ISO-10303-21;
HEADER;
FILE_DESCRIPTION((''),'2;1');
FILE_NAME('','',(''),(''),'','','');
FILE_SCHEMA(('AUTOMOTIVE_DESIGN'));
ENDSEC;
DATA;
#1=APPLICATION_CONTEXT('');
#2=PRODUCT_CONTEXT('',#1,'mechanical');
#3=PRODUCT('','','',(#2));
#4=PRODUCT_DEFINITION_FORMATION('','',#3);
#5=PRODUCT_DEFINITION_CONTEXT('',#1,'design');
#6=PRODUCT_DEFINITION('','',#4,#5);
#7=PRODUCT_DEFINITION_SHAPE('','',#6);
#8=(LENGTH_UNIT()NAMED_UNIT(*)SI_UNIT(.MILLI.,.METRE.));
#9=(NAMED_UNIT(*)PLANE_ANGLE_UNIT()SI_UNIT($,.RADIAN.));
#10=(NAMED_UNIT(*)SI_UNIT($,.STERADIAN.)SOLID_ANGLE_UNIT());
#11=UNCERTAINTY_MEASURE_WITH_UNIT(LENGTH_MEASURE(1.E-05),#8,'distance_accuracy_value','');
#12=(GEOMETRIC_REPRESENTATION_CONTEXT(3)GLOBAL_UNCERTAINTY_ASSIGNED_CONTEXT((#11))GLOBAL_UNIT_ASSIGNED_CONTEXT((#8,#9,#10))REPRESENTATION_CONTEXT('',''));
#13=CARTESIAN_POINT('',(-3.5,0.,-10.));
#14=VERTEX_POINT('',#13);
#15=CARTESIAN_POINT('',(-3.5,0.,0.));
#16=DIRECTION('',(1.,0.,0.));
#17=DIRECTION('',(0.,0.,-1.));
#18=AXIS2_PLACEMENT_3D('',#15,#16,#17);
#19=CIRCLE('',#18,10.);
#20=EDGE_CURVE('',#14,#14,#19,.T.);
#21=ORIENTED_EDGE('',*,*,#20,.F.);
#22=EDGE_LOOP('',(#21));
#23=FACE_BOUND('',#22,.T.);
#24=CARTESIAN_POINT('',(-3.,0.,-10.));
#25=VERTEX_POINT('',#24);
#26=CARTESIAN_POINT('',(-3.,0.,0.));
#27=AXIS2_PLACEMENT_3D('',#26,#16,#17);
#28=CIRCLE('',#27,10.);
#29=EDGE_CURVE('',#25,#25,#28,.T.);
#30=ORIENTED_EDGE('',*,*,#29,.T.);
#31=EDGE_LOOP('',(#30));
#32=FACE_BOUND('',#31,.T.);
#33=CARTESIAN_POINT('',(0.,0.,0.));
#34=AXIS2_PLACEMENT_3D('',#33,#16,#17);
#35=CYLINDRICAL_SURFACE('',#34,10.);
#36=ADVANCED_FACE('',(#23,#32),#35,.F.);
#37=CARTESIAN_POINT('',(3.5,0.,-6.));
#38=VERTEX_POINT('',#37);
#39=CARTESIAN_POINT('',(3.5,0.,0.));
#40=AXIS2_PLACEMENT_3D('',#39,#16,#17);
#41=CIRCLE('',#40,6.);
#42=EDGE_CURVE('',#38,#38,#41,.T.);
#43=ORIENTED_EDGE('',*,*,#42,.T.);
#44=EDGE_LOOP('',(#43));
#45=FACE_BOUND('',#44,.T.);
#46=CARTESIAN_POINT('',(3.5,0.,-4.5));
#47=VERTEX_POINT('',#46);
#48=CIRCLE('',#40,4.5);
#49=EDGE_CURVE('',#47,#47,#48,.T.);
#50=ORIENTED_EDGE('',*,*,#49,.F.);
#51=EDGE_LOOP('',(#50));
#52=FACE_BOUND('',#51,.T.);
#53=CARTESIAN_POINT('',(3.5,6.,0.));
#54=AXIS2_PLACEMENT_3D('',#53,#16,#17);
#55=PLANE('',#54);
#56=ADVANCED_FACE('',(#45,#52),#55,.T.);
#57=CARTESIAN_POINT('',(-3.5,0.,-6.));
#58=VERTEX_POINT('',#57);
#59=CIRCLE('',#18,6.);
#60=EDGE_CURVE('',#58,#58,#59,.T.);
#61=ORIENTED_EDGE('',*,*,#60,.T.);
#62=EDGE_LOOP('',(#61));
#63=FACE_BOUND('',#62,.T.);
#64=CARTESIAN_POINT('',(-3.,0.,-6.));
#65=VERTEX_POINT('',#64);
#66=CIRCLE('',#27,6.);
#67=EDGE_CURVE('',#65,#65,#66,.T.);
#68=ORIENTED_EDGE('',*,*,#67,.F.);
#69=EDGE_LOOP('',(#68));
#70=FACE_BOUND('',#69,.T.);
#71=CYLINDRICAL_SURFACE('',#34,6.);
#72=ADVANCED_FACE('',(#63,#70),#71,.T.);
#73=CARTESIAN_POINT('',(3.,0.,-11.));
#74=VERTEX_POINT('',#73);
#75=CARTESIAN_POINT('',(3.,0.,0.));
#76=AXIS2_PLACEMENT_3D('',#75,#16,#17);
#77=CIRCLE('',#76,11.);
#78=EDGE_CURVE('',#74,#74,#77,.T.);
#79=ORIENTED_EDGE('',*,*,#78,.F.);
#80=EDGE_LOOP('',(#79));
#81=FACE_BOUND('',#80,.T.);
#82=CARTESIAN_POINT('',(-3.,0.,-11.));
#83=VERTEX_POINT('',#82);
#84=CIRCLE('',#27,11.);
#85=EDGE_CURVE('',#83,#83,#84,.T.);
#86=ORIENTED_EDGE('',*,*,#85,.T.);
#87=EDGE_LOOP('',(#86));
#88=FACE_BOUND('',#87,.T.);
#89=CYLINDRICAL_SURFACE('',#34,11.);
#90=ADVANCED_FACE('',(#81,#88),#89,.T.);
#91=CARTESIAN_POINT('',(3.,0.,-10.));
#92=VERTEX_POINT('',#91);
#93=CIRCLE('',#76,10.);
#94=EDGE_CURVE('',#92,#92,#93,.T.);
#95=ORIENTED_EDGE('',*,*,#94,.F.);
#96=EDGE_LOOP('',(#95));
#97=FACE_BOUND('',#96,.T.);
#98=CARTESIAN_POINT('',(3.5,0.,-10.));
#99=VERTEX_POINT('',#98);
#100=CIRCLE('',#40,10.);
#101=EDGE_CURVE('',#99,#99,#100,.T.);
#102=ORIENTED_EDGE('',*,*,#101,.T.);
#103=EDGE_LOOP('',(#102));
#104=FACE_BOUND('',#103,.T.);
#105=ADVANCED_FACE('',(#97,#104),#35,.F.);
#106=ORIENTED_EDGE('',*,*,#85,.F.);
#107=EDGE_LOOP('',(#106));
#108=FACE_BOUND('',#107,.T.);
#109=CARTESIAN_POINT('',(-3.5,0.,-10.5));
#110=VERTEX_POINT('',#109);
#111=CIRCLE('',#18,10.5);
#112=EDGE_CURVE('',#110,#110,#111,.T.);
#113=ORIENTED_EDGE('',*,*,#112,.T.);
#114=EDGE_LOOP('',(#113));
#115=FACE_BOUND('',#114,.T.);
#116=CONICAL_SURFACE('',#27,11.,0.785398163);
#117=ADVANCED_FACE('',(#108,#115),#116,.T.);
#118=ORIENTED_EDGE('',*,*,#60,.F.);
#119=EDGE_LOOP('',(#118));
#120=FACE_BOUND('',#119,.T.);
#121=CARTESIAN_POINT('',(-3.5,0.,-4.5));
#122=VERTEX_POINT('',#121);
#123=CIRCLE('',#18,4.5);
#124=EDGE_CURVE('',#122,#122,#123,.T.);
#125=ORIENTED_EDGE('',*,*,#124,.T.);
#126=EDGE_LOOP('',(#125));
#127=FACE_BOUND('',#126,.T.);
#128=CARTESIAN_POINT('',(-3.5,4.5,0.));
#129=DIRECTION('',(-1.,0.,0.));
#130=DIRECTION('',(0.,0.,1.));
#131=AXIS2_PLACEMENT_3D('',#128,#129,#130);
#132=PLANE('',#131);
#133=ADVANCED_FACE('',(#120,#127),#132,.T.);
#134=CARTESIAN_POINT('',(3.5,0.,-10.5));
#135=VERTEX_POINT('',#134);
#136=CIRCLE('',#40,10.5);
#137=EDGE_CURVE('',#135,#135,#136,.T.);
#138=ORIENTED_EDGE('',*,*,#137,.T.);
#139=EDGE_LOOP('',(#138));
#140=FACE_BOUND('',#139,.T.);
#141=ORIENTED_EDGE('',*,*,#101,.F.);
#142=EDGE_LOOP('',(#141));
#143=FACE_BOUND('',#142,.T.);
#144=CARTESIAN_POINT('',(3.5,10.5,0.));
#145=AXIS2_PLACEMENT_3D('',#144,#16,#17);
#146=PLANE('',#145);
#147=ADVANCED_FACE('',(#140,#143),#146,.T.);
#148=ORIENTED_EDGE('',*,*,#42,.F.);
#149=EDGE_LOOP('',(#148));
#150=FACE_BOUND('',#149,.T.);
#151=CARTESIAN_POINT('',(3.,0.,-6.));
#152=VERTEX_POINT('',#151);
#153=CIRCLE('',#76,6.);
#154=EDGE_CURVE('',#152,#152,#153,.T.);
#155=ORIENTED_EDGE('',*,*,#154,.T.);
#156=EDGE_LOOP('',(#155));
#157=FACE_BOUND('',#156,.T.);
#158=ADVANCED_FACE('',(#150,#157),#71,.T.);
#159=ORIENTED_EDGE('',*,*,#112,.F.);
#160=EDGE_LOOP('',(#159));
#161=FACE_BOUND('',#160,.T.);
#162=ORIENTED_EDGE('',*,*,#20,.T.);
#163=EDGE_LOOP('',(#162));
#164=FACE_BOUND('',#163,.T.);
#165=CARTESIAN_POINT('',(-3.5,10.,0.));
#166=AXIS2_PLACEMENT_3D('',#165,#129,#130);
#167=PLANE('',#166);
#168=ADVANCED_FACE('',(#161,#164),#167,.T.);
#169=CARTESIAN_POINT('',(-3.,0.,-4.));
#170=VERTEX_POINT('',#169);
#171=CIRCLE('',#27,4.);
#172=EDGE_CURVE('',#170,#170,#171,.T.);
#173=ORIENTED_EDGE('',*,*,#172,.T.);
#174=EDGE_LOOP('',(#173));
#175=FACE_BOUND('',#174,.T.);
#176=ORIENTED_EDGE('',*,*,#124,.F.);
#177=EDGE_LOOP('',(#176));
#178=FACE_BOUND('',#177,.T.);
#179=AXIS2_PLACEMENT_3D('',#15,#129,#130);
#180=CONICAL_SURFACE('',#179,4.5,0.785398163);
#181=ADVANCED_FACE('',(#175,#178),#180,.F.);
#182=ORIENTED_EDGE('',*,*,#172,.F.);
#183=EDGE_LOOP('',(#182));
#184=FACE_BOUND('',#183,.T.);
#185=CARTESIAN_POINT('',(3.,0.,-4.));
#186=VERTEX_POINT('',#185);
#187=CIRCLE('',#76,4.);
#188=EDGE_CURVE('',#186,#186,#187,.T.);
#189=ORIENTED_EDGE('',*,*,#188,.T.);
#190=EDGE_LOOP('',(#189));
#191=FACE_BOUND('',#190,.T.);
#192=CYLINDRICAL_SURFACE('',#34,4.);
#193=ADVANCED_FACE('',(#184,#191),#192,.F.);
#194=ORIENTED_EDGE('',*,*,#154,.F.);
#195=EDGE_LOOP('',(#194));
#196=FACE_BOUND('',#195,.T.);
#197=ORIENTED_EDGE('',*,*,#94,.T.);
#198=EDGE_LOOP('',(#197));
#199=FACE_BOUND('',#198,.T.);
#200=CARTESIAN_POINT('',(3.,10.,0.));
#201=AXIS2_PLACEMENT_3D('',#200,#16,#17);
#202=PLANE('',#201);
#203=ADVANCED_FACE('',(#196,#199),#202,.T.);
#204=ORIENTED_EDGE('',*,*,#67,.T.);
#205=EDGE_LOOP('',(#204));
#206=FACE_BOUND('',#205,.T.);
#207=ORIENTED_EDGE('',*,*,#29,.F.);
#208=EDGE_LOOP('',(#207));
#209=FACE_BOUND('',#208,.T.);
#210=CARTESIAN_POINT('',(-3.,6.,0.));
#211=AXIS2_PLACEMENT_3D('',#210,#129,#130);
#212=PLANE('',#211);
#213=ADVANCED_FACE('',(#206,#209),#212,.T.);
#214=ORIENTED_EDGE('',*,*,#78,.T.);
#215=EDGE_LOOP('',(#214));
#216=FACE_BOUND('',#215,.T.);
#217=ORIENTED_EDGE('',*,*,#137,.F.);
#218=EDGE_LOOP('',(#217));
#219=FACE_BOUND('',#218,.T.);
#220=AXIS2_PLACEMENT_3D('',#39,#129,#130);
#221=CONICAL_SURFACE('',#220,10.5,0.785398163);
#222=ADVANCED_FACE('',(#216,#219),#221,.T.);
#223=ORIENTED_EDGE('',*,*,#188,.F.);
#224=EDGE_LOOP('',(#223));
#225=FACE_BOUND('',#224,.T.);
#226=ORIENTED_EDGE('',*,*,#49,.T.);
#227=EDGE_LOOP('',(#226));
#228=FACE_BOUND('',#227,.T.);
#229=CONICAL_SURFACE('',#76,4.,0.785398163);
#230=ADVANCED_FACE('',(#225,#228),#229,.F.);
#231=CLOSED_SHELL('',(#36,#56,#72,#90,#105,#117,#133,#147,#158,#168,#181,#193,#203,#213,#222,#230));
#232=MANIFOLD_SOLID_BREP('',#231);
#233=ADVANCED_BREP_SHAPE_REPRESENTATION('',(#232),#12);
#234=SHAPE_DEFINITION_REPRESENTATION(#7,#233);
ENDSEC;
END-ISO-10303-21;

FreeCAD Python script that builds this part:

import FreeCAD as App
import Part
import Sketcher
from FreeCAD import Vector

doc = App.newDocument("Part")
params = doc.addObject("Spreadsheet::Sheet", "Params")
for row, (alias, value) in enumerate([
    ("sketch1_width", "6 mm"),
    ("sketch1_height", "4 mm"),
    ("sketch1_width2", "0.5 mm"),
    ("sketch1_height2", "1.5 mm"),
    ("revolution_angle", "360 deg"),
], start=1):
    params.set(f"A{row}", alias)
    params.set(f"B{row}", "=" + value)
    params.setAlias(f"B{row}", alias)

body = doc.addObject("PartDesign::Body", "Body")

# Sketch on XY plane
sketch1 = body.newObject("Sketcher::SketchObject", "Sketch")
sketch1.AttachmentSupport = (doc.getObject("XY_Plane"), [""])
sketch1.MapMode = "FlatFace"
sketch1.addGeometry(Part.LineSegment(Vector(3, 11, 0), Vector(-3, 11, 0)), False)
sketch1.addGeometry(Part.LineSegment(Vector(-3, 11, 0), Vector(-3.5, 10.5, 0)), False)
sketch1.addGeometry(Part.LineSegment(Vector(-3.5, 10.5, 0), Vector(-3.5, 10, 0)), False)
sketch1.addGeometry(Part.LineSegment(Vector(-3.5, 10, 0), Vector(-3, 10, 0)), False)
sketch1.addGeometry(Part.LineSegment(Vector(-3, 10, 0), Vector(-3, 6, 0)), False)
sketch1.addGeometry(Part.LineSegment(Vector(-3, 6, 0), Vector(-3.5, 6, 0)), False)
sketch1.addGeometry(Part.LineSegment(Vector(-3.5, 6, 0), Vector(-3.5, 4.5, 0)), False)
sketch1.addGeometry(Part.LineSegment(Vector(-3.5, 4.5, 0), Vector(-3, 4, 0)), False)
sketch1.addGeometry(Part.LineSegment(Vector(-3, 4, 0), Vector(3, 4, 0)), False)
sketch1.addGeometry(Part.LineSegment(Vector(3, 4, 0), Vector(3.5, 4.5, 0)), False)
sketch1.addGeometry(Part.LineSegment(Vector(3.5, 4.5, 0), Vector(3.5, 6, 0)), False)
sketch1.addGeometry(Part.LineSegment(Vector(3.5, 6, 0), Vector(3, 6, 0)), False)
sketch1.addGeometry(Part.LineSegment(Vector(3, 6, 0), Vector(3, 10, 0)), False)
sketch1.addGeometry(Part.LineSegment(Vector(3, 10, 0), Vector(3.5, 10, 0)), False)
sketch1.addGeometry(Part.LineSegment(Vector(3.5, 10, 0), Vector(3.5, 10.5, 0)), False)
sketch1.addGeometry(Part.LineSegment(Vector(3.5, 10.5, 0), Vector(3, 11, 0)), False)
sketch1.addConstraint(Sketcher.Constraint("Coincident", 0, 2, 1, 1))
sketch1.addConstraint(Sketcher.Constraint("Coincident", 1, 2, 2, 1))
sketch1.addConstraint(Sketcher.Constraint("Coincident", 2, 2, 3, 1))
sketch1.addConstraint(Sketcher.Constraint("Coincident", 3, 2, 4, 1))
sketch1.addConstraint(Sketcher.Constraint("Coincident", 4, 2, 5, 1))
sketch1.addConstraint(Sketcher.Constraint("Coincident", 5, 2, 6, 1))
sketch1.addConstraint(Sketcher.Constraint("Coincident", 6, 2, 7, 1))
sketch1.addConstraint(Sketcher.Constraint("Coincident", 7, 2, 8, 1))
sketch1.addConstraint(Sketcher.Constraint("Coincident", 8, 2, 9, 1))
sketch1.addConstraint(Sketcher.Constraint("Coincident", 9, 2, 10, 1))
sketch1.addConstraint(Sketcher.Constraint("Coincident", 10, 2, 11, 1))
sketch1.addConstraint(Sketcher.Constraint("Coincident", 11, 2, 12, 1))
sketch1.addConstraint(Sketcher.Constraint("Coincident", 12, 2, 13, 1))
sketch1.addConstraint(Sketcher.Constraint("Coincident", 13, 2, 14, 1))
sketch1.addConstraint(Sketcher.Constraint("Coincident", 14, 2, 15, 1))
sketch1.addConstraint(Sketcher.Constraint("Coincident", 15, 2, 0, 1))
sketch1.addConstraint(Sketcher.Constraint("Horizontal", 0))
sketch1.addConstraint(Sketcher.Constraint("Vertical", 2))
sketch1.addConstraint(Sketcher.Constraint("Horizontal", 3))
sketch1.addConstraint(Sketcher.Constraint("Vertical", 4))
sketch1.addConstraint(Sketcher.Constraint("Horizontal", 5))
sketch1.addConstraint(Sketcher.Constraint("Vertical", 6))
sketch1.addConstraint(Sketcher.Constraint("Horizontal", 8))
sketch1.addConstraint(Sketcher.Constraint("Vertical", 10))
sketch1.addConstraint(Sketcher.Constraint("Horizontal", 11))
sketch1.addConstraint(Sketcher.Constraint("Vertical", 12))
sketch1.addConstraint(Sketcher.Constraint("Horizontal", 13))
sketch1.addConstraint(Sketcher.Constraint("Vertical", 14))
sketch1.addConstraint(Sketcher.Constraint("Symmetric", 6, 2, 9, 2, -2))
sketch1.addConstraint(Sketcher.Constraint("Symmetric", 4, 2, 11, 2, -2))
sketch1.addConstraint(Sketcher.Constraint("Symmetric", 2, 2, 13, 2, -2))
sketch1.addConstraint(Sketcher.Constraint("Perpendicular", 1, 7))
sketch1.addConstraint(Sketcher.Constraint("Perpendicular", 7, 9))
sketch1.addConstraint(Sketcher.Constraint("Perpendicular", 9, 15))
sketch1.addConstraint(Sketcher.Constraint("Horizontal", 1, 2, 14, 2))
sketch1.addConstraint(Sketcher.Constraint("Vertical", 0, 2, 3, 2))
sketch1.addConstraint(Sketcher.Constraint("Vertical", 2, 2, 5, 2))
sketch1.addConstraint(Sketcher.Constraint("Vertical", 4, 2, 7, 2))
sketch1.addConstraint(Sketcher.Constraint("Vertical", 8, 2, 11, 2))
sketch1.addConstraint(Sketcher.Constraint("Equal", 13, 2))
sketch1.addConstraint(Sketcher.Constraint("DistanceX", 0, 2, 0, 1, 6.0))
sketch1.addConstraint(Sketcher.Constraint("DistanceY", 4, 2, 4, 1, 4.0))
sketch1.addConstraint(Sketcher.Constraint("DistanceX", 3, 1, 3, 2, 0.5))
sketch1.addConstraint(Sketcher.Constraint("DistanceY", 6, 2, 6, 1, 1.5))
sketch1.addConstraint(Sketcher.Constraint("DistanceY", -1, 1, 0, 2, 11.0))
sketch1.setExpression("Constraints[40]", "Params.sketch1_width")
sketch1.setExpression("Constraints[41]", "Params.sketch1_height")
sketch1.setExpression("Constraints[42]", "Params.sketch1_width2")
sketch1.setExpression("Constraints[43]", "Params.sketch1_height2")
revolution = body.newObject("PartDesign::Revolution", "Revolution")
revolution.Profile = sketch1
revolution.ReferenceAxis = (sketch1, ["H_Axis"])
revolution.setExpression("Angle", "Params.revolution_angle")

doc.recompute()
